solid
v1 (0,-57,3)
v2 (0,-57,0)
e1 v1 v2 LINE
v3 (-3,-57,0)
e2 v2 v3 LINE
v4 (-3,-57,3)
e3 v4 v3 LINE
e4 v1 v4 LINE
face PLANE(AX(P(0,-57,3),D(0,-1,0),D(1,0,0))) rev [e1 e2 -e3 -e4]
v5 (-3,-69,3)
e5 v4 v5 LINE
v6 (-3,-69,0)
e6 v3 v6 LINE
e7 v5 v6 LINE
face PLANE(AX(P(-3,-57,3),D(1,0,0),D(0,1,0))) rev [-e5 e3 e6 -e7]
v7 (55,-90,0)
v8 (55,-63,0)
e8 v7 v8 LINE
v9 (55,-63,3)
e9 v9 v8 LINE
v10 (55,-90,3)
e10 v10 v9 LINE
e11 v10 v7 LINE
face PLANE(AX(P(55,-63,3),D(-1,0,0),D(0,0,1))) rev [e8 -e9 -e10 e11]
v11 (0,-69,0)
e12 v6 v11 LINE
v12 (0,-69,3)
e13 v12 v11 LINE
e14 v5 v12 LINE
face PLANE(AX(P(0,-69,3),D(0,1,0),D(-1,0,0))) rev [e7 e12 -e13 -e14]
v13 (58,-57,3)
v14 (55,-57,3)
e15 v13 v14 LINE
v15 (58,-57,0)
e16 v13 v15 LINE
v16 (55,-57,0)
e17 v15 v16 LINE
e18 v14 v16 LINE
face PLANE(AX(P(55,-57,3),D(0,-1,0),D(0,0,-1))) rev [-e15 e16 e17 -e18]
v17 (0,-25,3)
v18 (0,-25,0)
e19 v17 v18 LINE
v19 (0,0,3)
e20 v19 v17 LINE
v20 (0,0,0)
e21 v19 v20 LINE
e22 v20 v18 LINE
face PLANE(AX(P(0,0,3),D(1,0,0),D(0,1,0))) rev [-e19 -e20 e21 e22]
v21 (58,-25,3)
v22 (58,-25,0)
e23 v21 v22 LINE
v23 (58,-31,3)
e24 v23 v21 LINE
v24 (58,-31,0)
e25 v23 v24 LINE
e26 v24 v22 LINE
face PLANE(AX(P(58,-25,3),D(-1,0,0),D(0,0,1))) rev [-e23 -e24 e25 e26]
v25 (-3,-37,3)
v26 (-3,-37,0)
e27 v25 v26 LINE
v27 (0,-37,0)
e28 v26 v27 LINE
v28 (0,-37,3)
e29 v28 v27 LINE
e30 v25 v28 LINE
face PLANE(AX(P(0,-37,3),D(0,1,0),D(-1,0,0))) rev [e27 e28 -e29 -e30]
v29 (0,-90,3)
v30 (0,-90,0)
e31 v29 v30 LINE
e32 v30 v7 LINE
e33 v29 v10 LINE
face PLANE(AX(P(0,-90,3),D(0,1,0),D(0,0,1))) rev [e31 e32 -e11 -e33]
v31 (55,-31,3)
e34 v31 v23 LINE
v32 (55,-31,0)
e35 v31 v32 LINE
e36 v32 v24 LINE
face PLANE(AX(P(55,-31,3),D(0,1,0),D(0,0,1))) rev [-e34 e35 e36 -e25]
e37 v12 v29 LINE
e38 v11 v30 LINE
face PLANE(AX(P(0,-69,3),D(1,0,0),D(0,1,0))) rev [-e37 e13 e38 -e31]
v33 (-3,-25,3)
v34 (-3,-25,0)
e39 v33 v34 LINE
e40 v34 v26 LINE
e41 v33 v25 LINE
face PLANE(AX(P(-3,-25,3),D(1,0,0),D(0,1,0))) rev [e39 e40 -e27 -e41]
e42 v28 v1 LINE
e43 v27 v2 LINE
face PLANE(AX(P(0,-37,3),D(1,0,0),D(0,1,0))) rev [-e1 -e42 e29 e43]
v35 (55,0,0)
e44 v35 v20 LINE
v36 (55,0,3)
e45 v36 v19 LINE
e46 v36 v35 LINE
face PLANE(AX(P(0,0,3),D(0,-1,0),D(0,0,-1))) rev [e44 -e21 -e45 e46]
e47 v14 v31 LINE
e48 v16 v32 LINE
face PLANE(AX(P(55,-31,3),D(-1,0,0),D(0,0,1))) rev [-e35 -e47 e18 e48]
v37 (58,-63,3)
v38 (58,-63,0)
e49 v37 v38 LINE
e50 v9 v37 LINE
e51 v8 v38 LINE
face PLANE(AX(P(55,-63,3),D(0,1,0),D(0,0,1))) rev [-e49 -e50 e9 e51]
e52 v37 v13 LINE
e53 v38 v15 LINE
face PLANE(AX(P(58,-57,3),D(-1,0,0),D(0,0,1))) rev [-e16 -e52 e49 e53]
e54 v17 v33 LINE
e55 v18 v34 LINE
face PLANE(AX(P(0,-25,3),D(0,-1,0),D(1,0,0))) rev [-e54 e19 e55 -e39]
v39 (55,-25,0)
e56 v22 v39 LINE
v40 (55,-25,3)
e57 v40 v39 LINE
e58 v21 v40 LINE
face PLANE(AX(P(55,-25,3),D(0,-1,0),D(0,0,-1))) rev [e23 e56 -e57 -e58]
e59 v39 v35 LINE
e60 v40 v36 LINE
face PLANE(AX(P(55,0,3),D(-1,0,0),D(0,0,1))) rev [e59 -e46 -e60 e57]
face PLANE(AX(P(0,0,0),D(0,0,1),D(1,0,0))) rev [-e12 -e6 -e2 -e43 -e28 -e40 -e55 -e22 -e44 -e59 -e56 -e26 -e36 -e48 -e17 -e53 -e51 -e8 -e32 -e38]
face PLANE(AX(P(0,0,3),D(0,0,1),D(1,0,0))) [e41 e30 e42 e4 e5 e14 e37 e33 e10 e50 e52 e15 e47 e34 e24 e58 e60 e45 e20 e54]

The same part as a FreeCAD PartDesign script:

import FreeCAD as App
import Part
import Sketcher
from FreeCAD import Vector
Q = App.Units.Quantity

doc = App.newDocument("Part")
params = doc.addObject("Spreadsheet::Sheet", "Params")
for row, (alias, value) in enumerate([
    ("sketch1_width", "55 mm"),
    ("sketch1_width2", "3 mm"),
    ("sketch1_height", "25 mm"),
    ("sketch1_height2", "12 mm"),
    ("sketch1_height3", "20 mm"),
    ("pad1_length", "3 mm"),
], start=1):
    params.set(f"A{row}", alias)
    params.set(f"B{row}", "=" + value)
    params.setAlias(f"B{row}", alias)

body = doc.addObject("PartDesign::Body", "Body")

sketch1 = doc.addObject("Sketcher::SketchObject", "Sketch")
body.addObject(sketch1)
sketch1.AttachmentSupport = (doc.XY_Plane, [""])
sketch1.MapMode = "FlatFace"
sketch1.addGeometry([
    Part.LineSegment(Vector(55, 0, 0), Vector(0, 0, 0)),
    Part.LineSegment(Vector(0, 0, 0), Vector(0, -25, 0)),
    Part.LineSegment(Vector(0, -25, 0), Vector(-3, -25, 0)),
    Part.LineSegment(Vector(-3, -25, 0), Vector(-3, -37, 0)),
    Part.LineSegment(Vector(-3, -37, 0), Vector(0, -37, 0)),
    Part.LineSegment(Vector(0, -37, 0), Vector(0, -57, 0)),
    Part.LineSegment(Vector(0, -57, 0), Vector(-3, -57, 0)),
    Part.LineSegment(Vector(-3, -57, 0), Vector(-3, -69, 0)),
    Part.LineSegment(Vector(-3, -69, 0), Vector(0, -69, 0)),
    Part.LineSegment(Vector(0, -69, 0), Vector(0, -90, 0)),
    Part.LineSegment(Vector(0, -90, 0), Vector(55, -90, 0)),
    Part.LineSegment(Vector(55, -90, 0), Vector(55, -63, 0)),
    Part.LineSegment(Vector(55, -63, 0), Vector(58, -63, 0)),
    Part.LineSegment(Vector(58, -63, 0), Vector(58, -57, 0)),
    Part.LineSegment(Vector(58, -57, 0), Vector(55, -57, 0)),
    Part.LineSegment(Vector(55, -57, 0), Vector(55, -31, 0)),
    Part.LineSegment(Vector(55, -31, 0), Vector(58, -31, 0)),
    Part.LineSegment(Vector(58, -31, 0), Vector(58, -25, 0)),
    Part.LineSegment(Vector(58, -25, 0), Vector(55, -25, 0)),
    Part.LineSegment(Vector(55, -25, 0), Vector(55, 0, 0)),
], False)
sketch1.addConstraint([
    Sketcher.Constraint("Coincident", 0, 2, 1, 1),
    Sketcher.Constraint("Coincident", 1, 2, 2, 1),
    Sketcher.Constraint("Coincident", 2, 2, 3, 1),
    Sketcher.Constraint("Coincident", 3, 2, 4, 1),
    Sketcher.Constraint("Coincident", 4, 2, 5, 1),
    Sketcher.Constraint("Coincident", 5, 2, 6, 1),
    Sketcher.Constraint("Coincident", 6, 2, 7, 1),
    Sketcher.Constraint("Coincident", 7, 2, 8, 1),
    Sketcher.Constraint("Coincident", 8, 2, 9, 1),
    Sketcher.Constraint("Coincident", 9, 2, 10, 1),
    Sketcher.Constraint("Coincident", 10, 2, 11, 1),
    Sketcher.Constraint("Coincident", 11, 2, 12, 1),
    Sketcher.Constraint("Coincident", 12, 2, 13, 1),
    Sketcher.Constraint("Coincident", 13, 2, 14, 1),
    Sketcher.Constraint("Coincident", 14, 2, 15, 1),
    Sketcher.Constraint("Coincident", 15, 2, 16, 1),
    Sketcher.Constraint("Coincident", 16, 2, 17, 1),
    Sketcher.Constraint("Coincident", 17, 2, 18, 1),
    Sketcher.Constraint("Coincident", 18, 2, 19, 1),
    Sketcher.Constraint("Coincident", 19, 2, 0, 1),
    Sketcher.Constraint("Horizontal", 0),
    Sketcher.Constraint("Vertical", 1),
    Sketcher.Constraint("Horizontal", 2),
    Sketcher.Constraint("Vertical", 3),
    Sketcher.Constraint("Horizontal", 4),
    Sketcher.Constraint("Vertical", 5),
    Sketcher.Constraint("Horizontal", 6),
    Sketcher.Constraint("Vertical", 7),
    Sketcher.Constraint("Horizontal", 8),
    Sketcher.Constraint("Vertical", 9),
    Sketcher.Constraint("Horizontal", 10),
    Sketcher.Constraint("Vertical", 11),
    Sketcher.Constraint("Horizontal", 12),
    Sketcher.Constraint("Vertical", 13),
    Sketcher.Constraint("Horizontal", 14),
    Sketcher.Constraint("Vertical", 15),
    Sketcher.Constraint("Horizontal", 16),
    Sketcher.Constraint("Vertical", 17),
    Sketcher.Constraint("Horizontal", 18),
    Sketcher.Constraint("Vertical", 19),
    Sketcher.Constraint("Coincident", 0, 2, -1, 1),
    Sketcher.Constraint("PointOnObject", 4, 2, -2),
    Sketcher.Constraint("PointOnObject", 8, 2, -2),
    Sketcher.Constraint("Horizontal", 6, 2, 13, 2),
    Sketcher.Constraint("Horizontal", 2, 2, 17, 2),
    Sketcher.Constraint("Vertical", 3, 2, 6, 2),
    Sketcher.Constraint("Vertical", 11, 2, 14, 2),
    Sketcher.Constraint("Vertical", 13, 2, 16, 2),
    Sketcher.Constraint("Vertical", 15, 2, 18, 2),
    Sketcher.Constraint("Equal", 8, 12),
    Sketcher.Constraint("Equal", 3, 7),
    Sketcher.Constraint("Equal", 13, 17),
    Sketcher.Constraint("DistanceX", 0, 2, 0, 1, Q("55 mm")),
    Sketcher.Constraint("DistanceX", 2, 2, 2, 1, Q("3 mm")),
    Sketcher.Constraint("DistanceY", 1, 2, 1, 1, Q("25 mm")),
    Sketcher.Constraint("DistanceY", 3, 2, 3, 1, Q("12 mm")),
    Sketcher.Constraint("DistanceY", 5, 2, 5, 1, Q("20 mm")),
    Sketcher.Constraint("DistanceY", 9, 2, 9, 1, Q("21 mm")),
    Sketcher.Constraint("DistanceY", 11, 1, 11, 2, Q("27 mm")),
])
sketch1.setExpression("Constraints[52]", "Params.sketch1_width")
sketch1.setExpression("Constraints[53]", "Params.sketch1_width2")
sketch1.setExpression("Constraints[54]", "Params.sketch1_height")
sketch1.setExpression("Constraints[55]", "Params.sketch1_height2")
sketch1.setExpression("Constraints[56]", "Params.sketch1_height3")
pad1 = doc.addObject("PartDesign::Pad", "Pad")
body.addObject(pad1)
pad1.Profile = sketch1
pad1.setExpression("Length", "Params.pad1_length")

doc.recompute()
